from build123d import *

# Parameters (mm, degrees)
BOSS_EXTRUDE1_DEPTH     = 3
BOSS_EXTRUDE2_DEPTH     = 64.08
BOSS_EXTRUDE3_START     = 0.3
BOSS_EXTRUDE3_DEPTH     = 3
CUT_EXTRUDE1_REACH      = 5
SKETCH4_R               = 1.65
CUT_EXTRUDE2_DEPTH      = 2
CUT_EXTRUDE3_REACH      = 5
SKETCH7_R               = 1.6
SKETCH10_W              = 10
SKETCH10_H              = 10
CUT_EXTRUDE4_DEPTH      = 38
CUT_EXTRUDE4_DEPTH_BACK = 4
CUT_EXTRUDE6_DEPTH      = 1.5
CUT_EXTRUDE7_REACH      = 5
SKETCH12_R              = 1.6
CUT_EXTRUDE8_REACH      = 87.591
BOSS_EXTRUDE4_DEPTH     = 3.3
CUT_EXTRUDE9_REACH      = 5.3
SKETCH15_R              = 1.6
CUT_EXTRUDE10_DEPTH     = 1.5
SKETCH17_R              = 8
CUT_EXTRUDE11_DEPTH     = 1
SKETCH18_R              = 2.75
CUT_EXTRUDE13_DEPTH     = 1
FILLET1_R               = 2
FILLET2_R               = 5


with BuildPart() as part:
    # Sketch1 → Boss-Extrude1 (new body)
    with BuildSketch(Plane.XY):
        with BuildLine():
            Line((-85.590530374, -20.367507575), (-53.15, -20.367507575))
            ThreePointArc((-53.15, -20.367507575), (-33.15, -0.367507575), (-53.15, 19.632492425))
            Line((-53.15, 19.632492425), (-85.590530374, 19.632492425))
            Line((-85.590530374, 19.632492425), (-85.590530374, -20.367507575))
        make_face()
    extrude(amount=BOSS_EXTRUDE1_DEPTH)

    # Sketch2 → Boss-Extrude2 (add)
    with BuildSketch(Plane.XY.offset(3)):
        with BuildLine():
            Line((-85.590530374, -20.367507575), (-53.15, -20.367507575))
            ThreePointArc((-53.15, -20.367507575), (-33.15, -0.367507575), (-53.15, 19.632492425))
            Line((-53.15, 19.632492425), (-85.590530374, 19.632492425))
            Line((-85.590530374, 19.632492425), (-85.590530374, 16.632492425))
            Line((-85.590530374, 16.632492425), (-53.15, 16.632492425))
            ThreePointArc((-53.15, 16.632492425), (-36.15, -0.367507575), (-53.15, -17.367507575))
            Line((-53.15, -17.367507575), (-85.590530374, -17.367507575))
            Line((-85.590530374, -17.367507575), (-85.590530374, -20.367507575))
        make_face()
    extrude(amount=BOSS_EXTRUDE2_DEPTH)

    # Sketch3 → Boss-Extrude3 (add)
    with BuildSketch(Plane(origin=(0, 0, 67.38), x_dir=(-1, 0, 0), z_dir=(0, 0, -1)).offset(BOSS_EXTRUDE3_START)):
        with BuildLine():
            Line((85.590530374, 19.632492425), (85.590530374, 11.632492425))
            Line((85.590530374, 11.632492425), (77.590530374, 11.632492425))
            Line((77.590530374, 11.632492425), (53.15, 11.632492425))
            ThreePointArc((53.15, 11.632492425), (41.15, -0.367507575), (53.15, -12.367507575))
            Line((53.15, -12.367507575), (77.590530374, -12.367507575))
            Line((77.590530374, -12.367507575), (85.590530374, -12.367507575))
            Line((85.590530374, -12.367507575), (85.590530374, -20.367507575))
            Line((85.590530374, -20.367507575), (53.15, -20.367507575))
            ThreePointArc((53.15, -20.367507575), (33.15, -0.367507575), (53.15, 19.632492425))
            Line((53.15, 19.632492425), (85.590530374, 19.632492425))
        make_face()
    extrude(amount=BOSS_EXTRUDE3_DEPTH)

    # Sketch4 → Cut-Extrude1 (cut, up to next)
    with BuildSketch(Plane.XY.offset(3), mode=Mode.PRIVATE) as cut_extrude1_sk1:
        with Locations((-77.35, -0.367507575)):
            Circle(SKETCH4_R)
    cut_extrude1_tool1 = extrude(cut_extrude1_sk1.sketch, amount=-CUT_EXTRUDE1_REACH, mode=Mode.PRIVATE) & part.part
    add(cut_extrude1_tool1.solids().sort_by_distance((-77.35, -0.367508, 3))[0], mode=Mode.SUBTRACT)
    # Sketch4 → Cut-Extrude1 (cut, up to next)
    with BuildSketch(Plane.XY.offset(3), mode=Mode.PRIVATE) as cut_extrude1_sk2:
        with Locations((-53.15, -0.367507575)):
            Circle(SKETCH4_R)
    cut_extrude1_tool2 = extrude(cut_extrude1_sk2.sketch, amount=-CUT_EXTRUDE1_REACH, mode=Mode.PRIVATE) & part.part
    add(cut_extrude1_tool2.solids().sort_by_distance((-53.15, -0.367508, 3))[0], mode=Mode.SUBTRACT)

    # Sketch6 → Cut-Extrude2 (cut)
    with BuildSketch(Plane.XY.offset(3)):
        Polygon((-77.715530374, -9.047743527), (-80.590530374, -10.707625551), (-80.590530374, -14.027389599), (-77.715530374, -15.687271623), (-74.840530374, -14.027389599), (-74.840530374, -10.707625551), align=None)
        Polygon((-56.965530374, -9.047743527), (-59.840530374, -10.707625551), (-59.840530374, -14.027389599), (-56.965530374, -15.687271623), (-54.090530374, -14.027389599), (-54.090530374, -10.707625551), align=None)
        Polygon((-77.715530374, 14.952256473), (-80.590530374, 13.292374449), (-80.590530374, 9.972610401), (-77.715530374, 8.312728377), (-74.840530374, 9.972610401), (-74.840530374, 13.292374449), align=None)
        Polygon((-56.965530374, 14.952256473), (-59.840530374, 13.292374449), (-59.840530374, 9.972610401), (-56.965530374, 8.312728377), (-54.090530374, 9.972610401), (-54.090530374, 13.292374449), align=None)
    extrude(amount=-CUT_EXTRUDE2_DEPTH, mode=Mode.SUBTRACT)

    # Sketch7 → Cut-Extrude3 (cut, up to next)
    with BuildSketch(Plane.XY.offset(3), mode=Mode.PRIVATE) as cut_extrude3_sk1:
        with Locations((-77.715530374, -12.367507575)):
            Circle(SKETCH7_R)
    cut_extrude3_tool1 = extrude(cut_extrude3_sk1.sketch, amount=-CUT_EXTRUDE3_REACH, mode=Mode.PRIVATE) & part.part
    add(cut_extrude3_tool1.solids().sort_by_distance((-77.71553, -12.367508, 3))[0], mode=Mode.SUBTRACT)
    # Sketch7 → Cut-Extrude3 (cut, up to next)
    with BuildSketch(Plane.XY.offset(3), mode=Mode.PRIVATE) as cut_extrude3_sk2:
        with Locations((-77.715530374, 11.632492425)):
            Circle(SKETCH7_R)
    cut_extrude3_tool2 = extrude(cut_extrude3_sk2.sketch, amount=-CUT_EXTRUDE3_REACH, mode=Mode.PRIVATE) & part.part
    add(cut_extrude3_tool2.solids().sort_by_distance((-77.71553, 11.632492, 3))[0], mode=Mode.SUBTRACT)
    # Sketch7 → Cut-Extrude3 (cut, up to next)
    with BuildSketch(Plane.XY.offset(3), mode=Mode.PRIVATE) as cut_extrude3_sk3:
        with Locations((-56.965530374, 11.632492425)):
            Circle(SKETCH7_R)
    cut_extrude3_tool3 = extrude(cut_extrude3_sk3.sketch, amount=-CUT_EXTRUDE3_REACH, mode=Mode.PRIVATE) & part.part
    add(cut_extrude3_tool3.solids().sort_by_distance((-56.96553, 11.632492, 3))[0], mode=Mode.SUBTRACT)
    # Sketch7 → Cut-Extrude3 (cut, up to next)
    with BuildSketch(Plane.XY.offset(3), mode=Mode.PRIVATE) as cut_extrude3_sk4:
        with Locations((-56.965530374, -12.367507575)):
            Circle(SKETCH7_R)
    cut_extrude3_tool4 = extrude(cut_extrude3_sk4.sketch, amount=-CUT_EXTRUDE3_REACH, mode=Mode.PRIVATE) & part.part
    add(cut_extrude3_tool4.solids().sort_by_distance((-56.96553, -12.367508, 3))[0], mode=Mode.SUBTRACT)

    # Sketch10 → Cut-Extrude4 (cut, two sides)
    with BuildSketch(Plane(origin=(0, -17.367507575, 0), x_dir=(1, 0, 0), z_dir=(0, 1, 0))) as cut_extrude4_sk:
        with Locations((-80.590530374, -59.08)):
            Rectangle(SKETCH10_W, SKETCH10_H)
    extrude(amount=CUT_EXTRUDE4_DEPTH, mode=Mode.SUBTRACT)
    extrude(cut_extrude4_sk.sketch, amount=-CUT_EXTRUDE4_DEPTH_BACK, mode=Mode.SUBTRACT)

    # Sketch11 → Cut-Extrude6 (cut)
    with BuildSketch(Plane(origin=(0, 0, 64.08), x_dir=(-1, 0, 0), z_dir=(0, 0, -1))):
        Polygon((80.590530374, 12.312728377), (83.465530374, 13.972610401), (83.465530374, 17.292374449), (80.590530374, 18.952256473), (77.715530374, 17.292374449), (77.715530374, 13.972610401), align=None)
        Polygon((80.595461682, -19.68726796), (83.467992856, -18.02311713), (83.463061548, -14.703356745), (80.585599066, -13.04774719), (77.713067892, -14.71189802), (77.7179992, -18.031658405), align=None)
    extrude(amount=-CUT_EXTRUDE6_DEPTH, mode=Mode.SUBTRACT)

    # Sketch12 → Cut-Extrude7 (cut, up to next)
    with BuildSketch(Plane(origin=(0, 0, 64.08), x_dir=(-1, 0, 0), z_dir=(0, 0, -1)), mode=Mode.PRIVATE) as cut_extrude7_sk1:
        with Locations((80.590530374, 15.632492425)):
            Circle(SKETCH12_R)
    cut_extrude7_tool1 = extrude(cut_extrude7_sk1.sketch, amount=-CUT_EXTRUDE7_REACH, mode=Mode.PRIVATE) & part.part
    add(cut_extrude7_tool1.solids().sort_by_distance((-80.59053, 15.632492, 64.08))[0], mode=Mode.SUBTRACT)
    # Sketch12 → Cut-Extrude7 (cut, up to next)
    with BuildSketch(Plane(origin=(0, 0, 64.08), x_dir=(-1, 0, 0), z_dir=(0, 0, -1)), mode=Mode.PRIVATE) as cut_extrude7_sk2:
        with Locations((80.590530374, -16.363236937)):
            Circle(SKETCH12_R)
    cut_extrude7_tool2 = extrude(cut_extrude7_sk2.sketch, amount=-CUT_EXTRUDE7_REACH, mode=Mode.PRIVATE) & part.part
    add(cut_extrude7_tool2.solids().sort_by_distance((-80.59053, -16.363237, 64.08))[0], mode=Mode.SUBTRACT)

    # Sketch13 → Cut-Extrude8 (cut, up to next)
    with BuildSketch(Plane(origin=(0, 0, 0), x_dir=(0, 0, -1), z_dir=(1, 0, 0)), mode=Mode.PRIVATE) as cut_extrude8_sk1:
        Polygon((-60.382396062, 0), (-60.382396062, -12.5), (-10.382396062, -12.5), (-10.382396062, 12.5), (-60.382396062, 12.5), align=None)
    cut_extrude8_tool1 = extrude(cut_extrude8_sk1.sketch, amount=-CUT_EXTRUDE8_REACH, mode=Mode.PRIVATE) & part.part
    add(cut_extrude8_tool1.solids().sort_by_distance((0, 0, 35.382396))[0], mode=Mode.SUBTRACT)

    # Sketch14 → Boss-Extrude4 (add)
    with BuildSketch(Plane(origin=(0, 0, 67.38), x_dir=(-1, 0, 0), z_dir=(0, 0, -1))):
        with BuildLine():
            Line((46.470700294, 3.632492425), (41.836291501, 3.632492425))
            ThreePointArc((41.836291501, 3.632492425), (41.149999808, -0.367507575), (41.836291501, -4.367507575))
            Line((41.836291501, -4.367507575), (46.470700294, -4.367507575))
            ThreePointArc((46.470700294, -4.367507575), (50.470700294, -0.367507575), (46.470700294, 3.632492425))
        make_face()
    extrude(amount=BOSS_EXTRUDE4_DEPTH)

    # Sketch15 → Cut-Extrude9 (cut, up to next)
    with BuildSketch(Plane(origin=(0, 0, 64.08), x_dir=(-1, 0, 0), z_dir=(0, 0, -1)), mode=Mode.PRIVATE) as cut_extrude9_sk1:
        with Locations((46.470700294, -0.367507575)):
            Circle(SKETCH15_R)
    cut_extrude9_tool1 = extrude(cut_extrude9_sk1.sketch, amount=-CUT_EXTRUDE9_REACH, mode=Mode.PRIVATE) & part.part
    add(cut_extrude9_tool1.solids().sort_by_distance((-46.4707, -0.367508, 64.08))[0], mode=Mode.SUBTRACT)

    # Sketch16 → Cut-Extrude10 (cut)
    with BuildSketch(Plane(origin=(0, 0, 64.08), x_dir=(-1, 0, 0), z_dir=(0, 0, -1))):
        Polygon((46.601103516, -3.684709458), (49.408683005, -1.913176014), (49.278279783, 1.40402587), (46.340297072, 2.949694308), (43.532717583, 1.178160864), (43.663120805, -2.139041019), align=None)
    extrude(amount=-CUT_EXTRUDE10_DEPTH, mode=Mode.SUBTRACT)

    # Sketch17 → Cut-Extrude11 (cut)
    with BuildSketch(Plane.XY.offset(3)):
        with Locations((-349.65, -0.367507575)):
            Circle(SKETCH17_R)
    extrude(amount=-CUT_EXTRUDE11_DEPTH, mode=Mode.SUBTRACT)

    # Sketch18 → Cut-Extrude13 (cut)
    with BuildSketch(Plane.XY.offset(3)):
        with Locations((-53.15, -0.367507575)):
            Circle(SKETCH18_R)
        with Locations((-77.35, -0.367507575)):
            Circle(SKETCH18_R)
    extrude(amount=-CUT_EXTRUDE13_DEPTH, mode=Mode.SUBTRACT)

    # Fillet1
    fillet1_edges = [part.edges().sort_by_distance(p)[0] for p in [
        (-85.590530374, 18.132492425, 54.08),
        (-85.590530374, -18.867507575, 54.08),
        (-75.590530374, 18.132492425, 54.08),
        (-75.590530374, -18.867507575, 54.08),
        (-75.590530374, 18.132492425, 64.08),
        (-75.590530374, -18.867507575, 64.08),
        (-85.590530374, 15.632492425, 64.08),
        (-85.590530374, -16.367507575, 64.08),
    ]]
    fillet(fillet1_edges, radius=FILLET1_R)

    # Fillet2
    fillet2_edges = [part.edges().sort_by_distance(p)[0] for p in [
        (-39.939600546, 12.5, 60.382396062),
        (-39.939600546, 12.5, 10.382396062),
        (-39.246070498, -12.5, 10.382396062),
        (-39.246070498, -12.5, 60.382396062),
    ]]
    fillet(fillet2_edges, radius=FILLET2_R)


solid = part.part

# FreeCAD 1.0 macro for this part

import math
import FreeCAD as App
import Part
import Sketcher
Q = App.Units.Quantity


def edges_at(feature, points):
    """Names of the edges that pass closest to the given points."""
    edges = feature.Shape.Edges
    near = lambda p: min(range(len(edges)), key=lambda i: edges[i].distToShape(Part.Vertex(*p))[0])
    return sorted({f"Edge{near(p) + 1}" for p in points})


def add_polygon(sketch, points):
    """Adds a closed chain of lines whose ends are joined by coincident constraints."""
    first, n = sketch.GeometryCount, len(points)
    for a, b in zip(points, points[1:] + points[:1]):
        sketch.addGeometry(Part.LineSegment(App.Vector(*a, 0), App.Vector(*b, 0)), False)
    for i in range(n):
        sketch.addConstraint(Sketcher.Constraint("Coincident", first + i, 2, first + (i + 1) % n, 1))

doc = App.newDocument("Part")
params = doc.addObject("Spreadsheet::Sheet", "Params")
for row, (alias, value) in enumerate([
    ("sketch1_radius", "20 mm"),
    ("pad1_length", "3 mm"),
    ("sketch2_radius", "20 mm"),
    ("sketch2_radius2", "17 mm"),
    ("pad2_length", "64.08 mm"),
    ("sketch3_radius", "20 mm"),
    ("sketch3_radius2", "12 mm"),
    ("pad3_length", "3 mm"),
    ("sketch4_diameter", "3.3 mm"),
    ("sketch5_diameter", "3.3 mm"),
    ("pocket3_length", "2 mm"),
    ("sketch7_diameter", "3.2 mm"),
    ("pocket4_length", "3 mm"),
    ("sketch8_diameter", "3.2 mm"),
    ("pocket5_length", "3 mm"),
    ("sketch9_diameter", "3.2 mm"),
    ("pocket6_length", "3 mm"),
    ("sketch10_diameter", "3.2 mm"),
    ("pocket7_length", "3 mm"),
    ("sketch11_width", "10 mm"),
    ("pocket9_length", "1.5 mm"),
    ("sketch13_diameter", "3.2 mm"),
    ("pocket10_length", "3 mm"),
    ("sketch14_diameter", "3.2 mm"),
    ("pocket11_length", "3 mm"),
    ("sketch15_width", "25 mm"),
    ("sketch15_height", "50 mm"),
    ("pocket12_length", "42.040218 mm"),
    ("sketch16_radius", "4 mm"),
    ("pad4_length", "3.3 mm"),
    ("sketch17_diameter", "3.2 mm"),
    ("pocket14_length", "1.5 mm"),
    ("sketch19_diameter", "16 mm"),
    ("pocket15_length", "1 mm"),
    ("sketch20_diameter", "5.5 mm"),
    ("pocket16_length", "1 mm"),
    ("fillet_radius", "2 mm"),
    ("fillet2_radius", "5 mm"),
], start=1):
    params.set(f"A{row}", alias)
    params.set(f"B{row}", "=" + value)
    params.setAlias(f"B{row}", alias)

body = doc.addObject("PartDesign::Body", "Body")

# Sketch on XY plane
sketch1 = body.newObject("Sketcher::SketchObject", "Sketch")
sketch1.AttachmentSupport = (doc.getObject("XY_Plane"), [""])
sketch1.MapMode = "FlatFace"
sketch1.addGeometry([
    Part.LineSegment(App.Vector(-86, -20, 0), App.Vector(-53, -20, 0)),
    Part.ArcOfCircle(Part.Circle(App.Vector(-53, 0, 0), App.Vector(0, 0, 1), 20), math.radians(-90), math.radians(90)),
    Part.LineSegment(App.Vector(-53, 20, 0), App.Vector(-86, 20, 0)),
    Part.LineSegment(App.Vector(-86, 20, 0), App.Vector(-86, -20, 0)),
], False)
sketch1.addConstraint([
    Sketcher.Constraint("Tangent", 0, 2, 1, 1),
    Sketcher.Constraint("Tangent", 1, 2, 2, 1),
    Sketcher.Constraint("Coincident", 2, 2, 3, 1),
    Sketcher.Constraint("Coincident", 3, 2, 0, 1),
    Sketcher.Constraint("Horizontal", 0),
    Sketcher.Constraint("Horizontal", 2),
    Sketcher.Constraint("Vertical", 3),
    Sketcher.Constraint("Radius", 1, Q("20 mm")),
    Sketcher.Constraint("DistanceX", 1, 3, -1, 1, Q("53.15 mm")),
    Sketcher.Constraint("DistanceX", 0, 1, 0, 2, Q("32.44053 mm")),
    Sketcher.Constraint("DistanceY", 1, 3, -1, 1, Q("0.367508 mm")),
])
sketch1.setExpression("Constraints[7]", "Params.sketch1_radius")
pad1 = body.newObject("PartDesign::Pad", "Pad")
pad1.Profile = sketch1
pad1.setExpression("Length", "Params.pad1_length")

# Sketch on XY plane
sketch2 = body.newObject("Sketcher::SketchObject", "Sketch001")
sketch2.AttachmentSupport = (doc.getObject("XY_Plane"), [""])
sketch2.MapMode = "FlatFace"
sketch2.AttachmentOffset = App.Placement(App.Vector(0, 0, 3), App.Rotation())
sketch2.addGeometry([
    Part.LineSegment(App.Vector(-85.6, -20.4, 0), App.Vector(-53.1, -20.4, 0)),  # 0
    Part.ArcOfCircle(Part.Circle(App.Vector(-53.1, -0.4, 0), App.Vector(0, 0, 1), 20), math.radians(-90), math.radians(90)),  # 1
    Part.LineSegment(App.Vector(-53.1, 19.6, 0), App.Vector(-85.6, 19.6, 0)),  # 2
    Part.LineSegment(App.Vector(-85.6, 19.6, 0), App.Vector(-85.6, 16.6, 0)),  # 3
    Part.LineSegment(App.Vector(-85.6, 16.6, 0), App.Vector(-53.1, 16.6, 0)),  # 4
    Part.ArcOfCircle(Part.Circle(App.Vector(-53.1, -0.4, 0), App.Vector(0, 0, 1), 17), math.radians(-90), math.radians(90)),  # 5
    Part.LineSegment(App.Vector(-53.1, -17.4, 0), App.Vector(-85.6, -17.4, 0)),  # 6
    Part.LineSegment(App.Vector(-85.6, -17.4, 0), App.Vector(-85.6, -20.4, 0)),  # 7
], False)
sketch2.addConstraint([
    Sketcher.Constraint("Tangent", 0, 2, 1, 1),
    Sketcher.Constraint("Tangent", 1, 2, 2, 1),
    Sketcher.Constraint("Coincident", 2, 2, 3, 1),
    Sketcher.Constraint("Coincident", 3, 2, 4, 1),
    Sketcher.Constraint("Tangent", 4, 2, 5, 2),
    Sketcher.Constraint("Tangent", 5, 1, 6, 1),
    Sketcher.Constraint("Coincident", 6, 2, 7, 1),
    Sketcher.Constraint("Coincident", 7, 2, 0, 1),
    Sketcher.Constraint("Horizontal", 0),
    Sketcher.Constraint("Horizontal", 2),
    Sketcher.Constraint("Vertical", 3),
    Sketcher.Constraint("Horizontal", 4),
    Sketcher.Constraint("Horizontal", 6),
    Sketcher.Constraint("Vertical", 7),
    Sketcher.Constraint("Coincident", 5, 3, 1, 3),
    Sketcher.Constraint("Vertical", 3, 2, 6, 2),
    Sketcher.Constraint("Radius", 1, Q("20 mm")),
    Sketcher.Constraint("Radius", 5, Q("17 mm")),
    Sketcher.Constraint("DistanceX", 1, 3, -1, 1, Q("53.15 mm")),
    Sketcher.Constraint("DistanceX", 0, 1, 0, 2, Q("32.44053 mm")),
    Sketcher.Constraint("DistanceY", 1, 3, -1, 1, Q("0.367508 mm")),
])
sketch2.setExpression("Constraints[16]", "Params.sketch2_radius")
sketch2.setExpression("Constraints[17]", "Params.sketch2_radius2")
pad2 = body.newObject("PartDesign::Pad", "Pad001")
pad2.Profile = sketch2
pad2.setExpression("Length", "Params.pad2_length")

# Sketch on XY plane
sketch3 = body.newObject("Sketcher::SketchObject", "Sketch002")
sketch3.AttachmentSupport = (doc.getObject("XY_Plane"), [""])
sketch3.MapMode = "FlatFace"
sketch3.AttachmentOffset = App.Placement(App.Vector(0, 0, 67.08), App.Rotation())
sketch3.addGeometry([
    Part.LineSegment(App.Vector(-86, 12, 0), App.Vector(-86, 20, 0)),  # 0
    Part.LineSegment(App.Vector(-86, 20, 0), App.Vector(-53, 20, 0)),  # 1
    Part.ArcOfCircle(Part.Circle(App.Vector(-53, 0, 0), App.Vector(0, 0, 1), 20), math.radians(-90), math.radians(90)),  # 2
    Part.LineSegment(App.Vector(-53, -20, 0), App.Vector(-86, -20, 0)),  # 3
    Part.LineSegment(App.Vector(-86, -20, 0), App.Vector(-86, -12, 0)),  # 4
    Part.LineSegment(App.Vector(-86, -12, 0), App.Vector(-53, -12, 0)),  # 5
    Part.ArcOfCircle(Part.Circle(App.Vector(-53, 0, 0), App.Vector(0, 0, 1), 12), math.radians(-90), math.radians(90)),  # 6
    Part.LineSegment(App.Vector(-53, 12, 0), App.Vector(-86, 12, 0)),  # 7
], False)
sketch3.addConstraint([
    Sketcher.Constraint("Coincident", 0, 2, 1, 1),
    Sketcher.Constraint("Tangent", 1, 2, 2, 2),
    Sketcher.Constraint("Tangent", 2, 1, 3, 1),
    Sketcher.Constraint("Coincident", 3, 2, 4, 1),
    Sketcher.Constraint("Coincident", 4, 2, 5, 1),
    Sketcher.Constraint("Tangent", 5, 2, 6, 1),
    Sketcher.Constraint("Tangent", 6, 2, 7, 1),
    Sketcher.Constraint("Coincident", 7, 2, 0, 1),
    Sketcher.Constraint("Vertical", 0),
    Sketcher.Constraint("Horizontal", 1),
    Sketcher.Constraint("Horizontal", 3),
    Sketcher.Constraint("Vertical", 4),
    Sketcher.Constraint("Horizontal", 5),
    Sketcher.Constraint("Horizontal", 7),
    Sketcher.Constraint("Coincident", 6, 3, 2, 3),
    Sketcher.Constraint("Vertical", 0, 2, 3, 2),
    Sketcher.Constraint("Radius", 2, Q("20 mm")),
    Sketcher.Constraint("Radius", 6, Q("12 mm")),
    Sketcher.Constraint("DistanceX", 2, 3, -1, 1, Q("53.15 mm")),
    Sketcher.Constraint("DistanceX", 1, 1, 1, 2, Q("32.44053 mm")),
    Sketcher.Constraint("DistanceY", 2, 3, -1, 1, Q("0.367508 mm")),
])
sketch3.setExpression("Constraints[16]", "Params.sketch3_radius")
sketch3.setExpression("Constraints[17]", "Params.sketch3_radius2")
pad3 = body.newObject("PartDesign::Pad", "Pad002")
pad3.Profile = sketch3
pad3.setExpression("Length", "Params.pad3_length")
pad3.Reversed = True

# Sketch on XY plane
sketch4 = body.newObject("Sketcher::SketchObject", "Sketch003")
sketch4.AttachmentSupport = (doc.getObject("XY_Plane"), [""])
sketch4.MapMode = "FlatFace"
sketch4.AttachmentOffset = App.Placement(App.Vector(0, 0, 3), App.Rotation())
sketch4.addGeometry(Part.Circle(App.Vector(-77.3, -0.4, 0), App.Vector(0, 0, 1), 1.6), False)
sketch4.addConstraint([
    Sketcher.Constraint("Diameter", 0, Q("3.3 mm")),
    Sketcher.Constraint("DistanceX", 0, 3, -1, 1, Q("77.35 mm")),
    Sketcher.Constraint("DistanceY", 0, 3, -1, 1, Q("0.367508 mm")),
])
sketch4.setExpression("Constraints[0]", "Params.sketch4_diameter")
pocket1 = body.newObject("PartDesign::Pocket", "Pocket")
pocket1.Profile = sketch4
pocket1.Type = "UpToFirst"

# Sketch on XY plane
sketch5 = body.newObject("Sketcher::SketchObject", "Sketch004")
sketch5.AttachmentSupport = (doc.getObject("XY_Plane"), [""])
sketch5.MapMode = "FlatFace"
sketch5.AttachmentOffset = App.Placement(App.Vector(0, 0, 3), App.Rotation())
sketch5.addGeometry(Part.Circle(App.Vector(-53.1, -0.4, 0), App.Vector(0, 0, 1), 1.6), False)
sketch5.addConstraint([
    Sketcher.Constraint("Diameter", 0, Q("3.3 mm")),
    Sketcher.Constraint("DistanceX", 0, 3, -1, 1, Q("53.15 mm")),
    Sketcher.Constraint("DistanceY", 0, 3, -1, 1, Q("0.367508 mm")),
])
sketch5.setExpression("Constraints[0]", "Params.sketch5_diameter")
pocket2 = body.newObject("PartDesign::Pocket", "Pocket001")
pocket2.Profile = sketch5
pocket2.Type = "UpToFirst"

# Sketch on XY plane
sketch6 = body.newObject("Sketcher::SketchObject", "Sketch005")
sketch6.AttachmentSupport = (doc.getObject("XY_Plane"), [""])
sketch6.MapMode = "FlatFace"
sketch6.AttachmentOffset = App.Placement(App.Vector(0, 0, 3), App.Rotation())
add_polygon(sketch6, [(-77.7, -9), (-80.6, -10.7), (-80.6, -14), (-77.7, -15.7), (-74.8, -14), (-74.8, -10.7)])  # lines 0-5
add_polygon(sketch6, [(-57, -9), (-59.8, -10.7), (-59.8, -14), (-57, -15.7), (-54.1, -14), (-54.1, -10.7)])  # lines 6-11
add_polygon(sketch6, [(-77.7, 15), (-80.6, 13.3), (-80.6, 10), (-77.7, 8.3), (-74.8, 10), (-74.8, 13.3)])  # lines 12-17
add_polygon(sketch6, [(-57, 15), (-59.8, 13.3), (-59.8, 10), (-57, 8.3), (-54.1, 10), (-54.1, 13.3)])  # lines 18-23
sketch6.addConstraint([
    Sketcher.Constraint("Vertical", 1),
    Sketcher.Constraint("Vertical", 4),
    Sketcher.Constraint("Vertical", 7),
    Sketcher.Constraint("Vertical", 10),
    Sketcher.Constraint("Vertical", 13),
    Sketcher.Constraint("Vertical", 16),
    Sketcher.Constraint("Vertical", 19),
    Sketcher.Constraint("Vertical", 22),
    Sketcher.Constraint("Parallel", 0, 3),
    Sketcher.Constraint("Parallel", 2, 5),
    Sketcher.Constraint("Parallel", 3, 6),
    Sketcher.Constraint("Parallel", 5, 8),
    Sketcher.Constraint("Parallel", 6, 9),
    Sketcher.Constraint("Parallel", 8, 11),
    Sketcher.Constraint("Parallel", 9, 12),
    Sketcher.Constraint("Parallel", 11, 14),
    Sketcher.Constraint("Parallel", 12, 15),
    Sketcher.Constraint("Parallel", 14, 17),
    Sketcher.Constraint("Parallel", 15, 18),
    Sketcher.Constraint("Parallel", 17, 20),
    Sketcher.Constraint("Parallel", 18, 21),
    Sketcher.Constraint("Parallel", 20, 23),
    Sketcher.Constraint("Horizontal", 1, 2, 3, 2),
    Sketcher.Constraint("Horizontal", 0, 2, 4, 2),
    Sketcher.Constraint("Horizontal", 4, 2, 6, 2),
    Sketcher.Constraint("Horizontal", 3, 2, 7, 2),
    Sketcher.Constraint("Horizontal", 2, 2, 8, 2),
    Sketcher.Constraint("Horizontal", 7, 2, 9, 2),
    Sketcher.Constraint("Horizontal", 6, 2, 10, 2),
    Sketcher.Constraint("Horizontal", 13, 2, 15, 2),
    Sketcher.Constraint("Horizontal", 12, 2, 16, 2),
    Sketcher.Constraint("Horizontal", 16, 2, 18, 2),
    Sketcher.Constraint("Horizontal", 15, 2, 19, 2),
    Sketcher.Constraint("Horizontal", 14, 2, 20, 2),
    Sketcher.Constraint("Horizontal", 19, 2, 21, 2),
    Sketcher.Constraint("Horizontal", 18, 2, 22, 2),
    Sketcher.Constraint("Vertical", 2, 2, 5, 2),
    Sketcher.Constraint("Vertical", 1, 2, 12, 2),
    Sketcher.Constraint("Vertical", 5, 2, 14, 2),
    Sketcher.Constraint("Vertical", 7, 2, 18, 2),
    Sketcher.Constraint("Equal", 10, 13),
    Sketcher.Constraint("Angle", 0, Q("-150 deg")),
    Sketcher.Constraint("DistanceX", 4, 2, 6, 2, Q("15 mm")),
    Sketcher.Constraint("DistanceY", 0, 2, 12, 2, Q("24 mm")),
    Sketcher.Constraint("DistanceX", 1, 2, 3, 2, Q("5.75 mm")),
    Sketcher.Constraint("DistanceY", 1, 2, 1, 1, Q("3.319764 mm")),
    Sketcher.Constraint("DistanceX", 0, 2, -1, 1, Q("80.59053 mm")),
    Sketcher.Constraint("DistanceY", 1, 2, -1, 1, Q("14.02739 mm")),
])
pocket3 = body.newObject("PartDesign::Pocket", "Pocket002")
pocket3.Profile = sketch6
pocket3.setExpression("Length", "Params.pocket3_length")

# Sketch on XY plane
sketch7 = body.newObject("Sketcher::SketchObject", "Sketch006")
sketch7.AttachmentSupport = (doc.getObject("XY_Plane"), [""])
sketch7.MapMode = "FlatFace"
sketch7.AttachmentOffset = App.Placement(App.Vector(0, 0, 3), App.Rotation())
sketch7.addGeometry(Part.Circle(App.Vector(-77.7, -12.4, 0), App.Vector(0, 0, 1), 1.6), False)
sketch7.addConstraint([
    Sketcher.Constraint("Diameter", 0, Q("3.2 mm")),
    Sketcher.Constraint("DistanceX", 0, 3, -1, 1, Q("77.71553 mm")),
    Sketcher.Constraint("DistanceY", 0, 3, -1, 1, Q("12.367508 mm")),
])
sketch7.setExpression("Constraints[0]", "Params.sketch7_diameter")
pocket4 = body.newObject("PartDesign::Pocket", "Pocket003")
pocket4.Profile = sketch7
pocket4.setExpression("Length", "Params.pocket4_length")

# Sketch on XY plane
sketch8 = body.newObject("Sketcher::SketchObject", "Sketch007")
sketch8.AttachmentSupport = (doc.getObject("XY_Plane"), [""])
sketch8.MapMode = "FlatFace"
sketch8.AttachmentOffset = App.Placement(App.Vector(0, 0, 3), App.Rotation())
sketch8.addGeometry(Part.Circle(App.Vector(-77.7, 11.6, 0), App.Vector(0, 0, 1), 1.6), False)
sketch8.addConstraint([
    Sketcher.Constraint("Diameter", 0, Q("3.2 mm")),
    Sketcher.Constraint("DistanceX", 0, 3, -1, 1, Q("77.71553 mm")),
    Sketcher.Constraint("DistanceY", -1, 1, 0, 3, Q("11.632492 mm")),
])
sketch8.setExpression("Constraints[0]", "Params.sketch8_diameter")
pocket5 = body.newObject("PartDesign::Pocket", "Pocket004")
pocket5.Profile = sketch8
pocket5.setExpression("Length", "Params.pocket5_length")

# Sketch on XY plane
sketch9 = body.newObject("Sketcher::SketchObject", "Sketch008")
sketch9.AttachmentSupport = (doc.getObject("XY_Plane"), [""])
sketch9.MapMode = "FlatFace"
sketch9.AttachmentOffset = App.Placement(App.Vector(0, 0, 3), App.Rotation())
sketch9.addGeometry(Part.Circle(App.Vector(-57, 11.6, 0), App.Vector(0, 0, 1), 1.6), False)
sketch9.addConstraint([
    Sketcher.Constraint("Diameter", 0, Q("3.2 mm")),
    Sketcher.Constraint("DistanceX", 0, 3, -1, 1, Q("56.96553 mm")),
    Sketcher.Constraint("DistanceY", -1, 1, 0, 3, Q("11.632492 mm")),
])
sketch9.setExpression("Constraints[0]", "Params.sketch9_diameter")
pocket6 = body.newObject("PartDesign::Pocket", "Pocket005")
pocket6.Profile = sketch9
pocket6.setExpression("Length", "Params.pocket6_length")

# Sketch on XY plane
sketch10 = body.newObject("Sketcher::SketchObject", "Sketch009")
sketch10.AttachmentSupport = (doc.getObject("XY_Plane"), [""])
sketch10.MapMode = "FlatFace"
sketch10.AttachmentOffset = App.Placement(App.Vector(0, 0, 3), App.Rotation())
sketch10.addGeometry(Part.Circle(App.Vector(-57, -12.4, 0), App.Vector(0, 0, 1), 1.6), False)
sketch10.addConstraint([
    Sketcher.Constraint("Diameter", 0, Q("3.2 mm")),
    Sketcher.Constraint("DistanceX", 0, 3, -1, 1, Q("56.96553 mm")),
    Sketcher.Constraint("DistanceY", 0, 3, -1, 1, Q("12.367508 mm")),
])
sketch10.setExpression("Constraints[0]", "Params.sketch10_diameter")
pocket7 = body.newObject("PartDesign::Pocket", "Pocket006")
pocket7.Profile = sketch10
pocket7.setExpression("Length", "Params.pocket7_length")

# Sketch on XZ plane
sketch11 = body.newObject("Sketcher::SketchObject", "Sketch010")
sketch11.AttachmentSupport = (doc.getObject("XZ_Plane"), [""])
sketch11.MapMode = "FlatFace"
sketch11.AttachmentOffset = App.Placement(App.Vector(0, 0, 17.367508), App.Rotation())
add_polygon(sketch11, [(-86, 54), (-86, 64), (-76, 64), (-76, 54)])  # lines 0-3
sketch11.addConstraint([
    Sketcher.Constraint("Vertical", 0),
    Sketcher.Constraint("Horizontal", 1),
    Sketcher.Constraint("Vertical", 2),
    Sketcher.Constraint("Horizontal", 3),
    Sketcher.Constraint("Equal", 3, 0),
    Sketcher.Constraint("DistanceX", 1, 1, 1, 2, Q("10 mm")),
    Sketcher.Constraint("DistanceY", -1, 1, 0, 2, Q("64.08 mm")),
    Sketcher.Constraint("DistanceX", 0, 2, -1, 1, Q("85.59053 mm")),
])
sketch11.setExpression("Constraints[9]", "Params.sketch11_width")
pocket8 = body.newObject("PartDesign::Pocket", "Pocket007")
pocket8.Profile = sketch11
pocket8.Type = "ThroughAll"
pocket8.Midplane = True

# Sketch on XY plane
sketch12 = body.newObject("Sketcher::SketchObject", "Sketch011")
sketch12.AttachmentSupport = (doc.getObject("XY_Plane"), [""])
sketch12.MapMode = "FlatFace"
sketch12.AttachmentOffset = App.Placement(App.Vector(0, 0, 64.08), App.Rotation())
add_polygon(sketch12, [(-80.6, 12.3), (-83.5, 14), (-83.5, 17.3), (-80.6, 19), (-77.7, 17.3), (-77.7, 14)])  # lines 0-5
add_polygon(sketch12, [(-80.6, -19.7), (-83.5, -18), (-83.5, -14.7), (-80.6, -13), (-77.7, -14.7), (-77.7, -18)])  # lines 6-11
sketch12.addConstraint([
    Sketcher.Constraint("Vertical", 1),
    Sketcher.Constraint("Vertical", 4),
    Sketcher.Constraint("Parallel", 0, 3),
    Sketcher.Constraint("Parallel", 2, 5),
    Sketcher.Constraint("Parallel", 6, 9),
    Sketcher.Constraint("Parallel", 7, 10),
    Sketcher.Constraint("Parallel", 8, 11),
    Sketcher.Constraint("Horizontal", 1, 2, 3, 2),
    Sketcher.Constraint("Horizontal", 0, 2, 4, 2),
    Sketcher.Constraint("Vertical", 2, 2, 5, 2),
    Sketcher.Constraint("Equal", 5, 6),
    Sketcher.Constraint("Equal", 6, 7),
    Sketcher.Constraint("Equal", 7, 8),
    Sketcher.Constraint("Equal", 8, 9),
    Sketcher.Constraint("Angle", 0, Q("150 deg")),
    Sketcher.Constraint("DistanceX", 1, 2, 3, 2, Q("5.75 mm")),
    Sketcher.Constraint("DistanceX", 10, 2, -1, 1, Q("77.717999 mm")),
    Sketcher.Constraint("DistanceX", 8, 2, -1, 1, Q("80.585599 mm")),
    Sketcher.Constraint("DistanceY", 9, 2, -1, 1, Q("14.711898 mm")),
    Sketcher.Constraint("DistanceY", 10, 2, 7, 2, Q("3.328302 mm")),
    Sketcher.Constraint("DistanceY", 1, 1, 1, 2, Q("3.319764 mm")),
    Sketcher.Constraint("DistanceX", 0, 2, -1, 1, Q("83.46553 mm")),
    Sketcher.Constraint("DistanceY", -1, 1, 0, 2, Q("13.97261 mm")),
    Sketcher.Constraint("DistanceX", 7, 2, -1, 1, Q("83.463062 mm")),
])
pocket9 = body.newObject("PartDesign::Pocket", "Pocket008")
pocket9.Profile = sketch12
pocket9.setExpression("Length", "Params.pocket9_length")
pocket9.Reversed = True

# Sketch on XY plane
sketch13 = body.newObject("Sketcher::SketchObject", "Sketch012")
sketch13.AttachmentSupport = (doc.getObject("XY_Plane"), [""])
sketch13.MapMode = "FlatFace"
sketch13.AttachmentOffset = App.Placement(App.Vector(0, 0, 64.08), App.Rotation())
sketch13.addGeometry(Part.Circle(App.Vector(-80.6, 15.6, 0), App.Vector(0, 0, 1), 1.6), False)
sketch13.addConstraint([
    Sketcher.Constraint("Diameter", 0, Q("3.2 mm")),
    Sketcher.Constraint("DistanceX", 0, 3, -1, 1, Q("80.59053 mm")),
    Sketcher.Constraint("DistanceY", -1, 1, 0, 3, Q("15.632492 mm")),
])
sketch13.setExpression("Constraints[0]", "Params.sketch13_diameter")
pocket10 = body.newObject("PartDesign::Pocket", "Pocket009")
pocket10.Profile = sketch13
pocket10.setExpression("Length", "Params.pocket10_length")
pocket10.Reversed = True

# Sketch on XY plane
sketch14 = body.newObject("Sketcher::SketchObject", "Sketch013")
sketch14.AttachmentSupport = (doc.getObject("XY_Plane"), [""])
sketch14.MapMode = "FlatFace"
sketch14.AttachmentOffset = App.Placement(App.Vector(0, 0, 64.08), App.Rotation())
sketch14.addGeometry(Part.Circle(App.Vector(-80.6, -16.4, 0), App.Vector(0, 0, 1), 1.6), False)
sketch14.addConstraint([
    Sketcher.Constraint("Diameter", 0, Q("3.2 mm")),
    Sketcher.Constraint("DistanceX", 0, 3, -1, 1, Q("80.59053 mm")),
    Sketcher.Constraint("DistanceY", 0, 3, -1, 1, Q("16.363237 mm")),
])
sketch14.setExpression("Constraints[0]", "Params.sketch14_diameter")
pocket11 = body.newObject("PartDesign::Pocket", "Pocket010")
pocket11.Profile = sketch14
pocket11.setExpression("Length", "Params.pocket11_length")
pocket11.Reversed = True

# Sketch on YZ plane
sketch15 = body.newObject("Sketcher::SketchObject", "Sketch014")
sketch15.AttachmentSupport = (doc.getObject("YZ_Plane"), [""])
sketch15.MapMode = "FlatFace"
add_polygon(sketch15, [(-12, 60), (-12, 10), (12, 10), (12, 60)])  # lines 0-3
sketch15.addConstraint([
    Sketcher.Constraint("Vertical", 0),
    Sketcher.Constraint("Horizontal", 1),
    Sketcher.Constraint("Vertical", 2),
    Sketcher.Constraint("Horizontal", 3),
    Sketcher.Constraint("DistanceX", 1, 1, 1, 2, Q("25 mm")),
    Sketcher.Constraint("DistanceY", 0, 2, 0, 1, Q("50 mm")),
    Sketcher.Constraint("DistanceX", 0, 2, -1, 1, Q("12.5 mm")),
    Sketcher.Constraint("DistanceY", -1, 1, 0, 2, Q("10.382396 mm")),
])
sketch15.setExpression("Constraints[8]", "Params.sketch15_width")
sketch15.setExpression("Constraints[9]", "Params.sketch15_height")
pocket12 = body.newObject("PartDesign::Pocket", "Pocket011")
pocket12.Profile = sketch15
pocket12.setExpression("Length", "Params.pocket12_length")

# Sketch on XY plane
sketch16 = body.newObject("Sketcher::SketchObject", "Sketch015")
sketch16.AttachmentSupport = (doc.getObject("XY_Plane"), [""])
sketch16.MapMode = "FlatFace"
sketch16.AttachmentOffset = App.Placement(App.Vector(0, 0, 67.38), App.Rotation())
sketch16.addGeometry([
    Part.LineSegment(App.Vector(-46.5, 3.6, 0), App.Vector(-41.8, 3.6, 0)),
    Part.ArcOfCircle(Part.Circle(App.Vector(-53.1, -0.4, 0), App.Vector(0, 0, 1), 12), math.radians(-19), math.radians(19)),
    Part.LineSegment(App.Vector(-41.8, -4.4, 0), App.Vector(-46.5, -4.4, 0)),
    Part.ArcOfCircle(Part.Circle(App.Vector(-46.5, -0.4, 0), App.Vector(0, 0, 1), 4), math.radians(90), math.radians(270)),
], False)
sketch16.addConstraint([
    Sketcher.Constraint("Coincident", 0, 2, 1, 2),
    Sketcher.Constraint("Coincident", 1, 1, 2, 1),
    Sketcher.Constraint("Tangent", 2, 2, 3, 2),
    Sketcher.Constraint("Tangent", 3, 1, 0, 1),
    Sketcher.Constraint("Horizontal", 0),
    Sketcher.Constraint("Horizontal", 2),
    Sketcher.Constraint("Horizontal", 1, 3, 3, 3),
    Sketcher.Constraint("Radius", 3, Q("4 mm")),
    Sketcher.Constraint("Radius", 1, Q("11.999997 mm")),
    Sketcher.Constraint("DistanceX", 0, 1, 0, 2, Q("4.634409 mm")),
    Sketcher.Constraint("DistanceX", 3, 3, -1, 1, Q("46.4707 mm")),
    Sketcher.Constraint("DistanceY", 1, 3, -1, 1, Q("0.367508 mm")),
])
sketch16.setExpression("Constraints[7]", "Params.sketch16_radius")
pad4 = body.newObject("PartDesign::Pad", "Pad003")
pad4.Profile = sketch16
pad4.setExpression("Length", "Params.pad4_length")
pad4.Reversed = True

# Sketch on XY plane
sketch17 = body.newObject("Sketcher::SketchObject", "Sketch016")
sketch17.AttachmentSupport = (doc.getObject("XY_Plane"), [""])
sketch17.MapMode = "FlatFace"
sketch17.AttachmentOffset = App.Placement(App.Vector(0, 0, 64.08), App.Rotation())
sketch17.addGeometry(Part.Circle(App.Vector(-46.5, -0.4, 0), App.Vector(0, 0, 1), 1.6), False)
sketch17.addConstraint([
    Sketcher.Constraint("Diameter", 0, Q("3.2 mm")),
    Sketcher.Constraint("DistanceX", 0, 3, -1, 1, Q("46.4707 mm")),
    Sketcher.Constraint("DistanceY", 0, 3, -1, 1, Q("0.367508 mm")),
])
sketch17.setExpression("Constraints[0]", "Params.sketch17_diameter")
pocket13 = body.newObject("PartDesign::Pocket", "Pocket012")
pocket13.Profile = sketch17
pocket13.Type = "UpToFirst"
pocket13.Reversed = True

# Sketch on XY plane
sketch18 = body.newObject("Sketcher::SketchObject", "Sketch017")
sketch18.AttachmentSupport = (doc.getObject("XY_Plane"), [""])
sketch18.MapMode = "FlatFace"
sketch18.AttachmentOffset = App.Placement(App.Vector(0, 0, 64.08), App.Rotation())
add_polygon(sketch18, [(-46.6, -3.7), (-49.4, -1.9), (-49.3, 1.4), (-46.3, 2.9), (-43.5, 1.2), (-43.7, -2.1)])  # lines 0-5
sketch18.addConstraint([
    Sketcher.Constraint("Parallel", 0, 3),
    Sketcher.Constraint("Parallel", 1, 4),
    Sketcher.Constraint("Parallel", 2, 5),
    Sketcher.Constraint("Equal", 0, 1),
    Sketcher.Constraint("Equal", 1, 2),
    Sketcher.Constraint("Equal", 2, 3),
    Sketcher.Constraint("DistanceY", 0, 2, 1, 2, Q("3.317202 mm")),
    Sketcher.Constraint("DistanceX", 1, 2, -1, 1, Q("49.27828 mm")),
    Sketcher.Constraint("DistanceY", -1, 1, 3, 2, Q("1.178161 mm")),
    Sketcher.Constraint("DistanceX", 4, 2, -1, 1, Q("43.663121 mm")),
    Sketcher.Constraint("DistanceY", 5, 2, -1, 1, Q("3.684709 mm")),
    Sketcher.Constraint("DistanceX", 2, 2, 3, 2, Q("2.807579 mm")),
])
pocket14 = body.newObject("PartDesign::Pocket", "Pocket013")
pocket14.Profile = sketch18
pocket14.setExpression("Length", "Params.pocket14_length")
pocket14.Reversed = True

# Sketch on XY plane
sketch19 = body.newObject("Sketcher::SketchObject", "Sketch018")
sketch19.AttachmentSupport = (doc.getObject("XY_Plane"), [""])
sketch19.MapMode = "FlatFace"
sketch19.AttachmentOffset = App.Placement(App.Vector(0, 0, 3), App.Rotation())
sketch19.addGeometry(Part.Circle(App.Vector(-350, 0, 0), App.Vector(0, 0, 1), 8), False)
sketch19.addConstraint([
    Sketcher.Constraint("Diameter", 0, Q("16 mm")),
    Sketcher.Constraint("DistanceX", 0, 3, -1, 1, Q("349.65 mm")),
    Sketcher.Constraint("DistanceY", 0, 3, -1, 1, Q("0.367508 mm")),
])
sketch19.setExpression("Constraints[0]", "Params.sketch19_diameter")
pocket15 = body.newObject("PartDesign::Pocket", "Pocket014")
pocket15.Profile = sketch19
pocket15.setExpression("Length", "Params.pocket15_length")

# Sketch on XY plane
sketch20 = body.newObject("Sketcher::SketchObject", "Sketch019")
sketch20.AttachmentSupport = (doc.getObject("XY_Plane"), [""])
sketch20.MapMode = "FlatFace"
sketch20.AttachmentOffset = App.Placement(App.Vector(0, 0, 3), App.Rotation())
sketch20.addGeometry([
    Part.Circle(App.Vector(-53.1, -0.4, 0), App.Vector(0, 0, 1), 2.8),
    Part.Circle(App.Vector(-77.3, -0.4, 0), App.Vector(0, 0, 1), 2.8),
], False)
sketch20.addConstraint([
    Sketcher.Constraint("Equal", 0, 1),
    Sketcher.Constraint("Horizontal", 0, 3, 1, 3),
    Sketcher.Constraint("Diameter", 0, Q("5.5 mm")),
    Sketcher.Constraint("DistanceX", 1, 3, 0, 3, Q("24.2 mm")),
    Sketcher.Constraint("DistanceX", 0, 3, -1, 1, Q("53.15 mm")),
    Sketcher.Constraint("DistanceY", 0, 3, -1, 1, Q("0.367508 mm")),
])
sketch20.setExpression("Constraints[2]", "Params.sketch20_diameter")
pocket16 = body.newObject("PartDesign::Pocket", "Pocket015")
pocket16.Profile = sketch20
pocket16.setExpression("Length", "Params.pocket16_length")
doc.recompute()

fillet = body.newObject("PartDesign::Fillet", "Fillet")
fillet.Base = (pocket16, edges_at(pocket16, [
    (-85.591, 18.132, 54.08),
    (-85.591, -18.868, 54.08),
    (-75.591, 18.132, 54.08),
    (-75.591, -18.868, 54.08),
    (-75.591, 18.132, 64.08),
    (-75.591, -18.868, 64.08),
    (-85.591, 15.632, 64.08),
    (-85.591, -16.368, 64.08),
]))
fillet.setExpression("Radius", "Params.fillet_radius")
doc.recompute()

fillet2 = body.newObject("PartDesign::Fillet", "Fillet001")
fillet2.Base = (fillet, edges_at(fillet, [
    (-39.94, 12.5, 60.382),
    (-39.94, 12.5, 10.382),
    (-39.246, -12.5, 10.382),
    (-39.246, -12.5, 60.382),
]))
fillet2.setExpression("Radius", "Params.fillet2_radius")

doc.recompute()
